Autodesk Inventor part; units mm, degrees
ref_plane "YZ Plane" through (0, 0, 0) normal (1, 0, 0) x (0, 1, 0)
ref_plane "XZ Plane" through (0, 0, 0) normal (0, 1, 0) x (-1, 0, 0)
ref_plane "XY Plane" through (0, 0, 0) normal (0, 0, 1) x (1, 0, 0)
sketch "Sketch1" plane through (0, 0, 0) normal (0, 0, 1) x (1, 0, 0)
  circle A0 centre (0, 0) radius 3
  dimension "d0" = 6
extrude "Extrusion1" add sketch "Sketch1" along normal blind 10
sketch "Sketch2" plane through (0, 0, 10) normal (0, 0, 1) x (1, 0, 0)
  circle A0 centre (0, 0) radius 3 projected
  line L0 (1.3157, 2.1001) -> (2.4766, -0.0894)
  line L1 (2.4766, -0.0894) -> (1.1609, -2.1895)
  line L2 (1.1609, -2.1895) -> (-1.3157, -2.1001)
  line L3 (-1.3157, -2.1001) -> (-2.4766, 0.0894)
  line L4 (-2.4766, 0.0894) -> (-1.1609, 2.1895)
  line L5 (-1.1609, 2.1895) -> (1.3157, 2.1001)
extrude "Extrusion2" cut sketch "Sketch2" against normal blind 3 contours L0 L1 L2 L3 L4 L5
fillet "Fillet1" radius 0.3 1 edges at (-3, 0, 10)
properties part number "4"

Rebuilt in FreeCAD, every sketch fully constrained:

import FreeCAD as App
import Part
import Sketcher
Q = App.Units.Quantity


def edges_at(feature, points):
    """Names of the edges that pass closest to the given points."""
    edges = feature.Shape.Edges
    near = lambda p: min(range(len(edges)), key=lambda i: edges[i].distToShape(Part.Vertex(*p))[0])
    return sorted({f"Edge{near(p) + 1}" for p in points})

doc = App.newDocument("Part")
body = doc.addObject("PartDesign::Body", "Body")

sketch1 = doc.addObject("Sketcher::SketchObject", "Sketch")
body.addObject(sketch1)
sketch1.AttachmentSupport = (doc.XY_Plane, [""])
sketch1.MapMode = "FlatFace"
sketch1.addGeometry(Part.Circle(App.Vector(0, 0, 0), App.Vector(0, 0, 1), 3), False)
sketch1.addConstraint(Sketcher.Constraint("Coincident", 0, 3, -1, 1))
sketch1.addConstraint(Sketcher.Constraint("Diameter", 0, Q("6 mm")))
pad1 = doc.addObject("PartDesign::Pad", "Pad")
body.addObject(pad1)
pad1.Profile = sketch1
pad1.Length = 10

sketch2 = doc.addObject("Sketcher::SketchObject", "Sketch001")
body.addObject(sketch2)
sketch2.AttachmentSupport = (doc.XY_Plane, [""])
sketch2.MapMode = "FlatFace"
sketch2.AttachmentOffset = App.Placement(App.Vector(0, 0, 10), App.Rotation())
sketch2.addGeometry(Part.LineSegment(App.Vector(2.5, -0.1, 0), App.Vector(1.3, 2.1, 0)), False)
sketch2.addGeometry(Part.LineSegment(App.Vector(1.3, 2.1, 0), App.Vector(-1.2, 2.2, 0)), False)
sketch2.addGeometry(Part.LineSegment(App.Vector(-1.2, 2.2, 0), App.Vector(-2.5, 0.1, 0)), False)
sketch2.addGeometry(Part.LineSegment(App.Vector(-2.5, 0.1, 0), App.Vector(-1.3, -2.1, 0)), False)
sketch2.addGeometry(Part.LineSegment(App.Vector(-1.3, -2.1, 0), App.Vector(1.2, -2.2, 0)), False)
sketch2.addGeometry(Part.LineSegment(App.Vector(1.2, -2.2, 0), App.Vector(2.5, -0.1, 0)), False)
sketch2.addConstraint(Sketcher.Constraint("Coincident", 0, 2, 1, 1))
sketch2.addConstraint(Sketcher.Constraint("Coincident", 1, 2, 2, 1))
sketch2.addConstraint(Sketcher.Constraint("Coincident", 2, 2, 3, 1))
sketch2.addConstraint(Sketcher.Constraint("Coincident", 3, 2, 4, 1))
sketch2.addConstraint(Sketcher.Constraint("Coincident", 4, 2, 5, 1))
sketch2.addConstraint(Sketcher.Constraint("Coincident", 5, 2, 0, 1))
sketch2.addConstraint(Sketcher.Constraint("Symmetric", 0, 2, 3, 2, -1, 1))
sketch2.addConstraint(Sketcher.Constraint("Symmetric", 1, 2, 4, 2, -1, 1))
sketch2.addConstraint(Sketcher.Constraint("Symmetric", 2, 2, 5, 2, -1, 1))
sketch2.addConstraint(Sketcher.Constraint("Equal", 0, 1))
sketch2.addConstraint(Sketcher.Constraint("Equal", 1, 2))
sketch2.addConstraint(Sketcher.Constraint("DistanceY", -1, 1, 0, 2, Q("2.1 mm")))
sketch2.addConstraint(Sketcher.Constraint("DistanceY", 2, 2, 1, 2, Q("2.1 mm")))
sketch2.addConstraint(Sketcher.Constraint("DistanceX", 1, 2, -1, 1, Q("1.161 mm")))
sketch2.addConstraint(Sketcher.Constraint("DistanceX", 2, 2, 3, 2, Q("1.161 mm")))
pocket1 = doc.addObject("PartDesign::Pocket", "Pocket")
body.addObject(pocket1)
pocket1.Profile = sketch2
pocket1.Length = 3
doc.recompute()

fillet = doc.addObject("PartDesign::Fillet", "Fillet")
body.addObject(fillet)
fillet.Base = (pocket1, edges_at(pocket1, [(-3, 0, 10)]))
fillet.Radius = 0.3

doc.recompute()
